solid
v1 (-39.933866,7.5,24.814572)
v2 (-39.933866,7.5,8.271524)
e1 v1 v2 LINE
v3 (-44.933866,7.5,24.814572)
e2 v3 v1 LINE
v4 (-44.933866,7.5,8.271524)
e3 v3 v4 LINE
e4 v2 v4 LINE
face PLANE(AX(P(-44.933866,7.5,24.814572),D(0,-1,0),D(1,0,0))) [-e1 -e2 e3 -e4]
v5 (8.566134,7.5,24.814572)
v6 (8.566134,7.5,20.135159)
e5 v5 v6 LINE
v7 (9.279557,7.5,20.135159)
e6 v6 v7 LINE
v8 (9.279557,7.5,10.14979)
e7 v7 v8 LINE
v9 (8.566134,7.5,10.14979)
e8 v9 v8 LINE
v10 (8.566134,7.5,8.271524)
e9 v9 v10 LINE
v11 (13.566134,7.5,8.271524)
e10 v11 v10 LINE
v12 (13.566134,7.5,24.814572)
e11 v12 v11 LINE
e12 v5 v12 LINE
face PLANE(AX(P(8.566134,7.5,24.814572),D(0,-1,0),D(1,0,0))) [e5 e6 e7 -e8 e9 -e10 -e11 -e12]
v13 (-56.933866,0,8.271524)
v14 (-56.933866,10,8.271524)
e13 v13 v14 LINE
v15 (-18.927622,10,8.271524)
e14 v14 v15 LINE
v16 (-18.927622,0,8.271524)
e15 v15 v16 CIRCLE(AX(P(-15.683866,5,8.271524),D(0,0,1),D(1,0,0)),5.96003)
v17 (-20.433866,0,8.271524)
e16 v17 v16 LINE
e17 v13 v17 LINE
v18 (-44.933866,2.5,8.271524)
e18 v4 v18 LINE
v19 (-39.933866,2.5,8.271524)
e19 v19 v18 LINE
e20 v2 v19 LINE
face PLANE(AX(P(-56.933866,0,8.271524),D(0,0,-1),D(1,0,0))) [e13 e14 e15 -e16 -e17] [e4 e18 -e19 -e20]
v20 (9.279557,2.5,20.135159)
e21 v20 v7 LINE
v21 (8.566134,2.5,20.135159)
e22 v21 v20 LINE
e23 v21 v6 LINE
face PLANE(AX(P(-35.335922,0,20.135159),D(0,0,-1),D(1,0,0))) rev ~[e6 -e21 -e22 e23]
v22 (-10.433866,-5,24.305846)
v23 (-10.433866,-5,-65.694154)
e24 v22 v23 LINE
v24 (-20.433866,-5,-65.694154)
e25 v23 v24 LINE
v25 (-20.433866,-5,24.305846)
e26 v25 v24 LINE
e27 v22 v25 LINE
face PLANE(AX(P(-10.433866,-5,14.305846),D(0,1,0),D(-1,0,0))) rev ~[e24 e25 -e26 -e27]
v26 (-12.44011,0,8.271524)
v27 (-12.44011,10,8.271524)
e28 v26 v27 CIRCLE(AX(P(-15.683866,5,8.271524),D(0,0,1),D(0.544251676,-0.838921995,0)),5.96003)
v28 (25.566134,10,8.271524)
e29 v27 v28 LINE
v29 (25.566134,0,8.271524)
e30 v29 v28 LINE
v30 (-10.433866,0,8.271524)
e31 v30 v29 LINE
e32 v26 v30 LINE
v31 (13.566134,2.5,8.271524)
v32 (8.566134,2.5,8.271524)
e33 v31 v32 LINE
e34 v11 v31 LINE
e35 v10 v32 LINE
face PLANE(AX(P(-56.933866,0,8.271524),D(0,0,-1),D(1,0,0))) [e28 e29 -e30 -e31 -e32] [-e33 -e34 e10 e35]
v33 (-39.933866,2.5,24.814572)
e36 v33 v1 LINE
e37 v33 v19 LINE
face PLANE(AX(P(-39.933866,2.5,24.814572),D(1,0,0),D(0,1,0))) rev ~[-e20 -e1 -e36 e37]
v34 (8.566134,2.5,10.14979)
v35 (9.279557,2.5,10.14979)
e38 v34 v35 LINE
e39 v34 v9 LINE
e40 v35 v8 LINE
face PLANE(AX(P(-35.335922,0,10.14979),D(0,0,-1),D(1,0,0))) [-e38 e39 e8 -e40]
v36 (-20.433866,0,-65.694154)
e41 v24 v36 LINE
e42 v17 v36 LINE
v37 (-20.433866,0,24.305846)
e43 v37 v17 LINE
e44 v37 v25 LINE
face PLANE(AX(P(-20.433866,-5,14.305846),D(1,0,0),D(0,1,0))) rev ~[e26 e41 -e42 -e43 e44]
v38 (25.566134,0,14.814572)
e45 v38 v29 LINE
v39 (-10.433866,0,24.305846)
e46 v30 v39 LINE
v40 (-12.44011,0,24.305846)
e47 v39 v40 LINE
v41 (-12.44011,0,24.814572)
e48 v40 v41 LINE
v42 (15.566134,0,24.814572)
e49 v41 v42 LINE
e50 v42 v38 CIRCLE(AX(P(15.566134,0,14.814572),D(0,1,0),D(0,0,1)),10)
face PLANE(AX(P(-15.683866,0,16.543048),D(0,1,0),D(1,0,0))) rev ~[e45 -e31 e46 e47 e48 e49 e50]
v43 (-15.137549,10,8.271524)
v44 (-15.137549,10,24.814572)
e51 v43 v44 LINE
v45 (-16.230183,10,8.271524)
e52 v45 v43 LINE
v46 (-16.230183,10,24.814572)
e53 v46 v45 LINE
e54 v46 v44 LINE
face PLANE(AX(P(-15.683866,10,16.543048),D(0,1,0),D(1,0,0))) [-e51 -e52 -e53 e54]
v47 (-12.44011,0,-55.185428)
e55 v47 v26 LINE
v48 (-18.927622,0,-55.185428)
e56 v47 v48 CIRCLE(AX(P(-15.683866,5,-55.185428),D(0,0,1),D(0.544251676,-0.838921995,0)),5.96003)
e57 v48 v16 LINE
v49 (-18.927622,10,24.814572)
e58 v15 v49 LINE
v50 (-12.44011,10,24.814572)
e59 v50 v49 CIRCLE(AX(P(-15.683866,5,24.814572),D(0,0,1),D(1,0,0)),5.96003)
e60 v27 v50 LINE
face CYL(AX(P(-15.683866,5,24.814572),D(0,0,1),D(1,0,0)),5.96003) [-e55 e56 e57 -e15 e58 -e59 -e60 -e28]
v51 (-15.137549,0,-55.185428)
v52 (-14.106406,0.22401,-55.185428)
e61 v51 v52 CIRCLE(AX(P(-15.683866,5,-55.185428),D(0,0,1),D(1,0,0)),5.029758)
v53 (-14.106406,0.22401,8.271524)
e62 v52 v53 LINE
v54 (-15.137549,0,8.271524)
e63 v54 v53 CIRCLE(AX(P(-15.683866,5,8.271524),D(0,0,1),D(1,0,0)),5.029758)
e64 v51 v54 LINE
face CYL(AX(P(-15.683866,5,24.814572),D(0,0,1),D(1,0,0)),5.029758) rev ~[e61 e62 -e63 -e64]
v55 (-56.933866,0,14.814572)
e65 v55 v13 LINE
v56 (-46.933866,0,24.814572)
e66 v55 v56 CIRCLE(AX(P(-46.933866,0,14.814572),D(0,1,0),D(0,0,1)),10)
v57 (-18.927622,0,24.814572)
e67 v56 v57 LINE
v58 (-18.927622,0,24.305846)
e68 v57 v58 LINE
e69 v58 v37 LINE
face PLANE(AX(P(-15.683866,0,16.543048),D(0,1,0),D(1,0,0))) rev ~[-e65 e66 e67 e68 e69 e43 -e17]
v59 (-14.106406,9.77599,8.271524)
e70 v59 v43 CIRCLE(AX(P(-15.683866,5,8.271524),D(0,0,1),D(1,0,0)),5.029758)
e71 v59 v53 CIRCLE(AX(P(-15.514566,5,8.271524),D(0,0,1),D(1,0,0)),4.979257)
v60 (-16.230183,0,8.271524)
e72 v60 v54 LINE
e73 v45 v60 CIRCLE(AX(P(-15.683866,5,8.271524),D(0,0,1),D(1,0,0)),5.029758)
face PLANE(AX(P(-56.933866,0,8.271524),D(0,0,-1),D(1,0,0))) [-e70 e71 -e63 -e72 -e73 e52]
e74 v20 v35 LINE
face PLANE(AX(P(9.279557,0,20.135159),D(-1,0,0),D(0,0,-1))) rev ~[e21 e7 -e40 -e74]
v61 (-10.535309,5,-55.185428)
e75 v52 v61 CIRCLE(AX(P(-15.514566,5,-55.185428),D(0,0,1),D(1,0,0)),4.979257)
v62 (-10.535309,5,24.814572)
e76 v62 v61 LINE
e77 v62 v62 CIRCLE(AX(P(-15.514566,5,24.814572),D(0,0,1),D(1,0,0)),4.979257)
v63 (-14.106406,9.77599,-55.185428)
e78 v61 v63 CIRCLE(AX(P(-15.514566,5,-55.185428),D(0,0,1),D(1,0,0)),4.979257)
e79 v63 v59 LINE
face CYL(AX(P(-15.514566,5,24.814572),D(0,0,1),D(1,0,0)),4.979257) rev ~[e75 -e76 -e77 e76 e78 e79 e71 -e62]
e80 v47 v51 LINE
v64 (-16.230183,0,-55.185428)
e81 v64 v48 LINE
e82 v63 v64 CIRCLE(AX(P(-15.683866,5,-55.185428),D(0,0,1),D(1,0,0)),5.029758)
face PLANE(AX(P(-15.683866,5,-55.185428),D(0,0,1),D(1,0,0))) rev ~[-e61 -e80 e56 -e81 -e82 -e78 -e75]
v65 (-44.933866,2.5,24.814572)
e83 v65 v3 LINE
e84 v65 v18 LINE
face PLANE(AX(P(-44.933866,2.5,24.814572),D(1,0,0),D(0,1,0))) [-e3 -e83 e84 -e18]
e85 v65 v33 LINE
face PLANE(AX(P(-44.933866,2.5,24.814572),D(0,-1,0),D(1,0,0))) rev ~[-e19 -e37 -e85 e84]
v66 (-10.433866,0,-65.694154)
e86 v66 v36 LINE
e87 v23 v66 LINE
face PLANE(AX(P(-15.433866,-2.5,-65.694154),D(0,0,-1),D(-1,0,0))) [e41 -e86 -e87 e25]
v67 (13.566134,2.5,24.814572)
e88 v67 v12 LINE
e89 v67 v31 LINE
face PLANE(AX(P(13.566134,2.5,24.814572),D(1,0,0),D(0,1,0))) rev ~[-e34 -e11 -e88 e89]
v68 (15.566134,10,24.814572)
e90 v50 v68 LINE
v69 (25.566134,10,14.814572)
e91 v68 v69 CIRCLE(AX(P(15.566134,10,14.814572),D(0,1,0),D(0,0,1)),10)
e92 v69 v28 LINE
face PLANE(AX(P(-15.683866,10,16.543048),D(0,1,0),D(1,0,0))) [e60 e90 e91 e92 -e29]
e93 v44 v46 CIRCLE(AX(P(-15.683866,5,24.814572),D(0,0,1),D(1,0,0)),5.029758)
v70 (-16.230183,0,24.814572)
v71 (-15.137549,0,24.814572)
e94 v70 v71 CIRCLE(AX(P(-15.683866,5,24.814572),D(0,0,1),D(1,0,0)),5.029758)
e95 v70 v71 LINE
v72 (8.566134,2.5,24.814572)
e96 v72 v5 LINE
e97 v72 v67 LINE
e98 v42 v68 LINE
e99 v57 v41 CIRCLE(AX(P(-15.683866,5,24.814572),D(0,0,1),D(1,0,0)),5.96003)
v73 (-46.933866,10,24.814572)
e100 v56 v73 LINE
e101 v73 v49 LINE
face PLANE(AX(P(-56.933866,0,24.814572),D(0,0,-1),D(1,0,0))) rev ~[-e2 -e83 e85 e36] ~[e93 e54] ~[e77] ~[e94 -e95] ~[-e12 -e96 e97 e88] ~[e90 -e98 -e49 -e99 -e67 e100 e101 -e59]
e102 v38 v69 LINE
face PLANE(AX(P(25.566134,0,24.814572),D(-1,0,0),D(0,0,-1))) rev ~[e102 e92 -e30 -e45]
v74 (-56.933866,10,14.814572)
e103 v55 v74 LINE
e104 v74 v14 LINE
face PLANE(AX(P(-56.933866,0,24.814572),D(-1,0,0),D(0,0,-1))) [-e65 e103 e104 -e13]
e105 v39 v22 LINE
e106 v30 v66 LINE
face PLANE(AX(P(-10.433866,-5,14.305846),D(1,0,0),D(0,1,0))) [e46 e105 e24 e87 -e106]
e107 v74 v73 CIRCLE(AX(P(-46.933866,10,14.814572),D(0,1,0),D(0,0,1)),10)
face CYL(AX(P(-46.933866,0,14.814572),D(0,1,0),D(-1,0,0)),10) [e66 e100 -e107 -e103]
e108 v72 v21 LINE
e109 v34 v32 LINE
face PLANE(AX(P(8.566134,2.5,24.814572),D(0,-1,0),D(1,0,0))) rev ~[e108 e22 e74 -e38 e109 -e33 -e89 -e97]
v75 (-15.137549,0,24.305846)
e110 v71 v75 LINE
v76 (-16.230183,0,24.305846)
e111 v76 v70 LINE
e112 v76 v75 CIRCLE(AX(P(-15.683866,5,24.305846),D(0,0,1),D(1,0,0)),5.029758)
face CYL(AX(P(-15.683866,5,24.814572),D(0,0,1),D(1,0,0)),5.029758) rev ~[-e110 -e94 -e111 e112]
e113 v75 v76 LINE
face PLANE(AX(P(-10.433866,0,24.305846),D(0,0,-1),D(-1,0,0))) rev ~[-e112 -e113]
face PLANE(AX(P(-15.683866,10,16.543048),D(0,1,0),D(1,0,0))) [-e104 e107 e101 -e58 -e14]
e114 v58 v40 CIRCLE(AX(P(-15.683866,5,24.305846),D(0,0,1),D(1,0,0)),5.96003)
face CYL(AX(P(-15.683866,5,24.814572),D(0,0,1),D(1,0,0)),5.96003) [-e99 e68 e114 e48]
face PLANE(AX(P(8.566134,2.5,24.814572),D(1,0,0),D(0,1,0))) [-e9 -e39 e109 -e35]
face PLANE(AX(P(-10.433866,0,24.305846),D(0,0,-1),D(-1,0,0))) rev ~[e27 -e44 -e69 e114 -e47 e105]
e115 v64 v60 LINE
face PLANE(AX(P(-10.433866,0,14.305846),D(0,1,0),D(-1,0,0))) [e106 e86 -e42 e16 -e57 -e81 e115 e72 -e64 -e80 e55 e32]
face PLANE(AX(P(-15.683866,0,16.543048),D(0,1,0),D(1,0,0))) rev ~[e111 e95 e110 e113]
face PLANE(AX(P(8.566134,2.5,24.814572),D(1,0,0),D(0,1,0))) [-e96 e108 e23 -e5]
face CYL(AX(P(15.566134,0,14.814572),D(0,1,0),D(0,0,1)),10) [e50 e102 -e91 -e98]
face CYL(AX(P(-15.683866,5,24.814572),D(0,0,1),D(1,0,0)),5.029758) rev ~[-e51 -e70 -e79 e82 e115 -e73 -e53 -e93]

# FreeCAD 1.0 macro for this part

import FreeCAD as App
import Part
import Sketcher
from FreeCAD import Vector
Q = App.Units.Quantity


def edges_at(feature, points):
    """Names of the edges that pass closest to the given points."""
    edges = feature.Shape.Edges
    near = lambda p: min(range(len(edges)), key=lambda i: edges[i].distToShape(Part.Vertex(*p))[0])
    return sorted({f"Edge{near(p) + 1}" for p in points})


def add_polygon(sketch, points):
    """Adds a closed chain of lines whose ends are joined by coincident constraints."""
    first, n = sketch.GeometryCount, len(points)
    for a, b in zip(points, points[1:] + points[:1]):
        sketch.addGeometry(Part.LineSegment(App.Vector(*a, 0), App.Vector(*b, 0)), False)
    for i in range(n):
        sketch.addConstraint(Sketcher.Constraint("Coincident", first + i, 2, first + (i + 1) % n, 1))

doc = App.newDocument("Part")
body = doc.addObject("PartDesign::Body", "Body")

sketch1 = doc.addObject("Sketcher::SketchObject", "Sketch")
body.addObject(sketch1)
sketch1.AttachmentSupport = (doc.XZ_Plane, [""])
sketch1.MapMode = "FlatFace"
add_polygon(sketch1, [(-56.933866, 8.271524), (-56.933866, 24.814572), (25.566134, 24.814572), (25.566134, 8.271524)])
sketch1.addConstraint([
    Sketcher.Constraint("Vertical", 0),
    Sketcher.Constraint("Horizontal", 1),
    Sketcher.Constraint("Vertical", 2),
    Sketcher.Constraint("Horizontal", 3),
    Sketcher.Constraint("DistanceX", 1, 1, 1, 2, Q("82.5 mm")),
    Sketcher.Constraint("DistanceY", 0, 1, 0, 2, Q("16.543048 mm")),
    Sketcher.Constraint("DistanceY", -1, 1, 0, 2, Q("24.814572 mm")),
    Sketcher.Constraint("DistanceX", 0, 2, -1, 1, Q("56.933866 mm")),
])
pad1 = doc.addObject("PartDesign::Pad", "Pad")
body.addObject(pad1)
pad1.Profile = sketch1
pad1.Length = 10
pad1.Reversed = True
doc.recompute()

fillet = doc.addObject("PartDesign::Fillet", "Fillet")
body.addObject(fillet)
fillet.Base = (pad1, edges_at(pad1, [(25.566, 5, 24.815), (-56.934, 5, 24.815)]))
fillet.Radius = 10

sketch2 = doc.addObject("Sketcher::SketchObject", "Sketch001")
body.addObject(sketch2)
sketch2.AttachmentSupport = (doc.XY_Plane, [""])
sketch2.MapMode = "FlatFace"
sketch2.AttachmentOffset = App.Placement(Vector(0, 0, 24.814572), App.Rotation())
add_polygon(sketch2, [(-44.933866, 7.5), (-44.933866, 2.5), (-39.933866, 2.5), (-39.933866, 7.5)])
sketch2.addConstraint([
    Sketcher.Constraint("Vertical", 0),
    Sketcher.Constraint("Horizontal", 1),
    Sketcher.Constraint("Vertical", 2),
    Sketcher.Constraint("Horizontal", 3),
    Sketcher.Constraint("Equal", 3, 0),
    Sketcher.Constraint("DistanceX", 1, 1, 1, 2, Q("5 mm")),
    Sketcher.Constraint("DistanceY", -1, 1, 0, 2, Q("2.5 mm")),
    Sketcher.Constraint("DistanceX", 0, 2, -1, 1, Q("44.933866 mm")),
])
pocket1 = doc.addObject("PartDesign::Pocket", "Pocket")
body.addObject(pocket1)
pocket1.Profile = sketch2
pocket1.Length = 21

sketch3 = doc.addObject("Sketcher::SketchObject", "Sketch002")
body.addObject(sketch3)
sketch3.AttachmentSupport = (doc.XY_Plane, [""])
sketch3.MapMode = "FlatFace"
sketch3.AttachmentOffset = App.Placement(Vector(0, 0, 24.814572), App.Rotation())
add_polygon(sketch3, [(8.566134, 7.5), (8.566134, 2.5), (13.566134, 2.5), (13.566134, 7.5)])
sketch3.addConstraint([
    Sketcher.Constraint("Vertical", 0),
    Sketcher.Constraint("Horizontal", 1),
    Sketcher.Constraint("Vertical", 2),
    Sketcher.Constraint("Horizontal", 3),
    Sketcher.Constraint("Equal", 3, 0),
    Sketcher.Constraint("DistanceX", 1, 1, 1, 2, Q("5 mm")),
    Sketcher.Constraint("DistanceY", -1, 1, 0, 2, Q("2.5 mm")),
    Sketcher.Constraint("DistanceX", -1, 1, 0, 2, Q("8.566134 mm")),
])
pocket2 = doc.addObject("PartDesign::Pocket", "Pocket001")
body.addObject(pocket2)
pocket2.Profile = sketch3
pocket2.Length = 100

sketch4 = doc.addObject("Sketcher::SketchObject", "Sketch003")
body.addObject(sketch4)
sketch4.AttachmentSupport = (doc.XY_Plane, [""])
sketch4.MapMode = "FlatFace"
sketch4.AttachmentOffset = App.Placement(Vector(0, 0, 24.814572), App.Rotation())
sketch4.addGeometry([
    Part.Circle(Vector(-15.683866, 5, 0), Vector(0, 0, 1), 5.96003),
    Part.Circle(Vector(-15.683866, 5, 0), Vector(0, 0, 1), 5.029758),
], False)
sketch4.addConstraint([
    Sketcher.Constraint("Coincident", 1, 3, 0, 3),
    Sketcher.Constraint("DistanceY", -1, 1, 0, 3, Q("5 mm")),
    Sketcher.Constraint("Diameter", 0, Q("11.920059 mm")),
    Sketcher.Constraint("Diameter", 1, Q("10.059515 mm")),
    Sketcher.Constraint("DistanceX", 0, 3, -1, 1, Q("15.683866 mm")),
])
pad2 = doc.addObject("PartDesign::Pad", "Pad001")
body.addObject(pad2)
pad2.Profile = sketch4
pad2.Length = 80
pad2.Reversed = True

sketch5 = doc.addObject("Sketcher::SketchObject", "Sketch004")
body.addObject(sketch5)
sketch5.AttachmentSupport = (doc.XY_Plane, [""])
sketch5.MapMode = "FlatFace"
sketch5.AttachmentOffset = App.Placement(Vector(0, 0, 24.814572), App.Rotation())
sketch5.addGeometry(Part.Circle(Vector(-15.514566, 5, 0), Vector(0, 0, 1), 4.979257), False)
sketch5.addConstraint([
    Sketcher.Constraint("DistanceY", -1, 1, 0, 3, Q("5 mm")),
    Sketcher.Constraint("Diameter", 0, Q("9.958513 mm")),
    Sketcher.Constraint("DistanceX", 0, 3, -1, 1, Q("15.514566 mm")),
])
pocket3 = doc.addObject("PartDesign::Pocket", "Pocket002")
body.addObject(pocket3)
pocket3.Profile = sketch5
pocket3.Length = 80

sketch6 = doc.addObject("Sketcher::SketchObject", "Sketch005")
body.addObject(sketch6)
sketch6.AttachmentSupport = (doc.XZ_Plane, [""])
sketch6.MapMode = "FlatFace"
add_polygon(sketch6, [(-35.335922, 10.14979), (-35.335922, 20.135159), (9.279557, 20.135159), (9.279557, 10.14979)])
sketch6.addConstraint([
    Sketcher.Constraint("Vertical", 0),
    Sketcher.Constraint("Horizontal", 1),
    Sketcher.Constraint("Vertical", 2),
    Sketcher.Constraint("Horizontal", 3),
    Sketcher.Constraint("DistanceX", 1, 1, 1, 2, Q("44.615479 mm")),
    Sketcher.Constraint("DistanceY", 0, 1, 0, 2, Q("9.985369 mm")),
    Sketcher.Constraint("DistanceX", 0, 2, -1, 1, Q("35.335922 mm")),
    Sketcher.Constraint("DistanceY", -1, 1, 0, 2, Q("20.135159 mm")),
])
pad3 = doc.addObject("PartDesign::Pad", "Pad002")
body.addObject(pad3)
pad3.Profile = sketch6
pad3.Length = 10
pad3.Reversed = True

sketch7 = doc.addObject("Sketcher::SketchObject", "Sketch006")
body.addObject(sketch7)
sketch7.AttachmentSupport = (doc.XZ_Plane, [""])
sketch7.MapMode = "FlatFace"
add_polygon(sketch7, [(-10.433866, 14.305846), (-10.433866, 24.305846), (-20.433866, 24.305846), (-20.433866, 14.305846)])
sketch7.addConstraint([
    Sketcher.Constraint("Vertical", 0),
    Sketcher.Constraint("Horizontal", 1),
    Sketcher.Constraint("Vertical", 2),
    Sketcher.Constraint("Horizontal", 3),
    Sketcher.Constraint("Equal", 3, 0),
    Sketcher.Constraint("DistanceX", 1, 2, 1, 1, Q("10 mm")),
    Sketcher.Constraint("DistanceX", 0, 2, -1, 1, Q("10.433866 mm")),
    Sketcher.Constraint("DistanceY", -1, 1, 0, 2, Q("24.305846 mm")),
])
pad4 = doc.addObject("PartDesign::Pad", "Pad003")
body.addObject(pad4)
pad4.Profile = sketch7
pad4.Length = 5

sketch8 = doc.addObject("Sketcher::SketchObject", "Sketch007")
body.addObject(sketch8)
sketch8.AttachmentSupport = (doc.XY_Plane, [""])
sketch8.MapMode = "FlatFace"
sketch8.AttachmentOffset = App.Placement(Vector(0, 0, 14.305846), App.Rotation())
add_polygon(sketch8, [(-10.433866, 0), (-10.433866, -5), (-20.433866, -5), (-20.433866, 0)])
sketch8.addConstraint([
    Sketcher.Constraint("Vertical", 0),
    Sketcher.Constraint("Horizontal", 1),
    Sketcher.Constraint("Vertical", 2),
    Sketcher.Constraint("Horizontal", 3),
    Sketcher.Constraint("PointOnObject", 2, 2, -1),
    Sketcher.Constraint("DistanceX", 1, 2, 1, 1, Q("10 mm")),
    Sketcher.Constraint("DistanceY", 0, 2, 0, 1, Q("5 mm")),
    Sketcher.Constraint("DistanceX", 0, 2, -1, 1, Q("10.433866 mm")),
])
pad5 = doc.addObject("PartDesign::Pad", "Pad004")
body.addObject(pad5)
pad5.Profile = sketch8
pad5.Length = 80
pad5.Reversed = True

sketch9 = doc.addObject("Sketcher::SketchObject", "Sketch008")
body.addObject(sketch9)
sketch9.AttachmentSupport = (doc.XY_Plane, [""])
sketch9.MapMode = "FlatFace"
sketch9.AttachmentOffset = App.Placement(Vector(0, 0, 20.135159), App.Rotation())
sketch9.addGeometry(Part.Circle(Vector(-15.514566, 5, 0), Vector(0, 0, 1), 4.979257), False)
sketch9.addConstraint([
    Sketcher.Constraint("DistanceY", -1, 1, 0, 3, Q("5 mm")),
    Sketcher.Constraint("Diameter", 0, Q("9.958513 mm")),
    Sketcher.Constraint("DistanceX", 0, 3, -1, 1, Q("15.514566 mm")),
])
pocket4 = doc.addObject("PartDesign::Pocket", "Pocket003")
body.addObject(pocket4)
pocket4.Profile = sketch9
pocket4.Length = 80

doc.recompute()
